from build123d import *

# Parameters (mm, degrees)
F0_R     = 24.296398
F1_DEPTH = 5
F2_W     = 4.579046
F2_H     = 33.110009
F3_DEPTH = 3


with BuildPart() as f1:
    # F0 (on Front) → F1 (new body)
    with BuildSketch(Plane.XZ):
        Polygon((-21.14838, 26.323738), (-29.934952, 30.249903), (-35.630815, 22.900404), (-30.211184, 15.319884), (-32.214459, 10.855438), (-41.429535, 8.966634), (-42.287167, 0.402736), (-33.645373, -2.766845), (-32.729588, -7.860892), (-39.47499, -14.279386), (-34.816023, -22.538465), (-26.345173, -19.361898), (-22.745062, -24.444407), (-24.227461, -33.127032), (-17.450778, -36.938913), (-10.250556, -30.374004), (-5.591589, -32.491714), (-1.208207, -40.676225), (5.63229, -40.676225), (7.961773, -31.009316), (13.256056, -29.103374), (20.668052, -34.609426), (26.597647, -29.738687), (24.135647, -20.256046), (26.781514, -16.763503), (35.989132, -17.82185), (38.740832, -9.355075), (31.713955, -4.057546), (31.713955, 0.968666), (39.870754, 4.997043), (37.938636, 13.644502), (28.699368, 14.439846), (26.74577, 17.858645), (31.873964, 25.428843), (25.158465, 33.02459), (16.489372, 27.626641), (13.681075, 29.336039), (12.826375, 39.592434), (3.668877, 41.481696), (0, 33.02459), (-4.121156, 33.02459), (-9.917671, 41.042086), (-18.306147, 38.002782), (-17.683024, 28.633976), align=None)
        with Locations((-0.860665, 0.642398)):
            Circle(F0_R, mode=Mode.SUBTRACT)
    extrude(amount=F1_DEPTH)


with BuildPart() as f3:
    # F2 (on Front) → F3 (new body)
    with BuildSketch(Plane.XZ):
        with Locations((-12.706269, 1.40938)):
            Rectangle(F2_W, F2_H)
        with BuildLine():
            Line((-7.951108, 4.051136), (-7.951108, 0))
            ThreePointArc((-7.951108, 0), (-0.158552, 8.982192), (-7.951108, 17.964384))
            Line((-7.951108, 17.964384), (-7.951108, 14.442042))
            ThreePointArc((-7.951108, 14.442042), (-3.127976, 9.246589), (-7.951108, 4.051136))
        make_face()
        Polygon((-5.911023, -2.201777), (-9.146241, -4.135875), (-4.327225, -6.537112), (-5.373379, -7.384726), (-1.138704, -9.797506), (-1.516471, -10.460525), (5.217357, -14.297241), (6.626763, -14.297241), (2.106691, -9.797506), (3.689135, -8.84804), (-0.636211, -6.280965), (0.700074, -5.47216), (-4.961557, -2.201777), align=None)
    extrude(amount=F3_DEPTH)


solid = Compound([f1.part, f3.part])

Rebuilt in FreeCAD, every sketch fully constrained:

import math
import FreeCAD as App
import Part
import Sketcher

V = App.Vector

doc = App.newDocument("Part")
params = doc.addObject("Spreadsheet::Sheet", "Params")
for row, (alias, value) in enumerate([
    ("pad1_length", "5 mm"),
    ("pad2_length", "3 mm"),
], start=1):
    params.set(f"A{row}", alias)
    params.set(f"B{row}", "=" + value)
    params.setAlias(f"B{row}", alias)

body = doc.addObject("PartDesign::Body", "Body")

# Sketch on XZ plane
sketch1 = doc.addObject("Sketcher::SketchObject", "Sketch")
body.addObject(sketch1)
sketch1.AttachmentSupport = (doc.XZ_Plane, [""])
sketch1.MapMode = "FlatFace"
sketch1.addGeometry([
    Part.LineSegment(V(-21.14838, 26.323738, 0), V(-29.934952, 30.249903, 0)),  # 0
    Part.LineSegment(V(-29.934952, 30.249903, 0), V(-35.630815, 22.900404, 0)),  # 1
    Part.LineSegment(V(-35.630815, 22.900404, 0), V(-30.211184, 15.319884, 0)),  # 2
    Part.LineSegment(V(-30.211184, 15.319884, 0), V(-32.214459, 10.855438, 0)),  # 3
    Part.LineSegment(V(-32.214459, 10.855438, 0), V(-41.429535, 8.966634, 0)),  # 4
    Part.LineSegment(V(-41.429535, 8.966634, 0), V(-42.287167, 0.402736, 0)),  # 5
    Part.LineSegment(V(-42.287167, 0.402736, 0), V(-33.645373, -2.766845, 0)),  # 6
    Part.LineSegment(V(-33.645373, -2.766845, 0), V(-32.729588, -7.860892, 0)),  # 7
    Part.LineSegment(V(-32.729588, -7.860892, 0), V(-39.47499, -14.279386, 0)),  # 8
    Part.LineSegment(V(-39.47499, -14.279386, 0), V(-34.816023, -22.538465, 0)),  # 9
    Part.LineSegment(V(-34.816023, -22.538465, 0), V(-26.345173, -19.361898, 0)),  # 10
    Part.LineSegment(V(-26.345173, -19.361898, 0), V(-22.745062, -24.444407, 0)),  # 11
    Part.LineSegment(V(-22.745062, -24.444407, 0), V(-24.227461, -33.127032, 0)),  # 12
    Part.LineSegment(V(-24.227461, -33.127032, 0), V(-17.450778, -36.938913, 0)),  # 13
    Part.LineSegment(V(-17.450778, -36.938913, 0), V(-10.250556, -30.374004, 0)),  # 14
    Part.LineSegment(V(-10.250556, -30.374004, 0), V(-5.591589, -32.491714, 0)),  # 15
    Part.LineSegment(V(-5.591589, -32.491714, 0), V(-1.208207, -40.676225, 0)),  # 16
    Part.LineSegment(V(-1.208207, -40.676225, 0), V(5.63229, -40.676225, 0)),  # 17
    Part.LineSegment(V(5.63229, -40.676225, 0), V(7.961773, -31.009316, 0)),  # 18
    Part.LineSegment(V(7.961773, -31.009316, 0), V(13.256056, -29.103374, 0)),  # 19
    Part.LineSegment(V(13.256056, -29.103374, 0), V(20.668052, -34.609426, 0)),  # 20
    Part.LineSegment(V(20.668052, -34.609426, 0), V(26.597647, -29.738687, 0)),  # 21
    Part.LineSegment(V(26.597647, -29.738687, 0), V(24.135647, -20.256046, 0)),  # 22
    Part.LineSegment(V(24.135647, -20.256046, 0), V(26.781514, -16.763503, 0)),  # 23
    Part.LineSegment(V(26.781514, -16.763503, 0), V(35.989132, -17.82185, 0)),  # 24
    Part.LineSegment(V(35.989132, -17.82185, 0), V(38.740832, -9.355075, 0)),  # 25
    Part.LineSegment(V(38.740832, -9.355075, 0), V(31.713955, -4.057546, 0)),  # 26
    Part.LineSegment(V(31.713955, -4.057546, 0), V(31.713955, 0.968666, 0)),  # 27
    Part.LineSegment(V(31.713955, 0.968666, 0), V(39.870754, 4.997043, 0)),  # 28
    Part.LineSegment(V(39.870754, 4.997043, 0), V(37.938636, 13.644502, 0)),  # 29
    Part.LineSegment(V(37.938636, 13.644502, 0), V(28.699368, 14.439846, 0)),  # 30
    Part.LineSegment(V(28.699368, 14.439846, 0), V(26.74577, 17.858645, 0)),  # 31
    Part.LineSegment(V(26.74577, 17.858645, 0), V(31.873964, 25.428843, 0)),  # 32
    Part.LineSegment(V(31.873964, 25.428843, 0), V(25.158465, 33.02459, 0)),  # 33
    Part.LineSegment(V(25.158465, 33.02459, 0), V(16.489372, 27.626641, 0)),  # 34
    Part.LineSegment(V(16.489372, 27.626641, 0), V(13.681075, 29.336039, 0)),  # 35
    Part.LineSegment(V(13.681075, 29.336039, 0), V(12.826375, 39.592434, 0)),  # 36
    Part.LineSegment(V(12.826375, 39.592434, 0), V(3.668877, 41.481696, 0)),  # 37
    Part.LineSegment(V(3.668877, 41.481696, 0), V(0, 33.02459, 0)),  # 38
    Part.LineSegment(V(0, 33.02459, 0), V(-4.121156, 33.02459, 0)),  # 39
    Part.LineSegment(V(-4.121156, 33.02459, 0), V(-9.917671, 41.042086, 0)),  # 40
    Part.LineSegment(V(-9.917671, 41.042086, 0), V(-18.306147, 38.002782, 0)),  # 41
    Part.LineSegment(V(-18.306147, 38.002782, 0), V(-17.683024, 28.633976, 0)),  # 42
    Part.LineSegment(V(-17.683024, 28.633976, 0), V(-21.14838, 26.323738, 0)),  # 43
    Part.Circle(V(-0.860665, 0.642398, 0), V(0, 0, 1), 24.296398),  # 44
], False)
sketch1.addConstraint([
    Sketcher.Constraint("Coincident", 0, 2, 1, 1),
    Sketcher.Constraint("Coincident", 1, 2, 2, 1),
    Sketcher.Constraint("Coincident", 2, 2, 3, 1),
    Sketcher.Constraint("Coincident", 3, 2, 4, 1),
    Sketcher.Constraint("Coincident", 4, 2, 5, 1),
    Sketcher.Constraint("Coincident", 5, 2, 6, 1),
    Sketcher.Constraint("Coincident", 6, 2, 7, 1),
    Sketcher.Constraint("Coincident", 7, 2, 8, 1),
    Sketcher.Constraint("Coincident", 8, 2, 9, 1),
    Sketcher.Constraint("Coincident", 9, 2, 10, 1),
    Sketcher.Constraint("Coincident", 10, 2, 11, 1),
    Sketcher.Constraint("Coincident", 11, 2, 12, 1),
    Sketcher.Constraint("Coincident", 12, 2, 13, 1),
    Sketcher.Constraint("Coincident", 13, 2, 14, 1),
    Sketcher.Constraint("Coincident", 14, 2, 15, 1),
    Sketcher.Constraint("Coincident", 15, 2, 16, 1),
    Sketcher.Constraint("Coincident", 16, 2, 17, 1),
    Sketcher.Constraint("Coincident", 17, 2, 18, 1),
    Sketcher.Constraint("Coincident", 18, 2, 19, 1),
    Sketcher.Constraint("Coincident", 19, 2, 20, 1),
    Sketcher.Constraint("Coincident", 20, 2, 21, 1),
    Sketcher.Constraint("Coincident", 21, 2, 22, 1),
    Sketcher.Constraint("Coincident", 22, 2, 23, 1),
    Sketcher.Constraint("Coincident", 23, 2, 24, 1),
    Sketcher.Constraint("Coincident", 24, 2, 25, 1),
    Sketcher.Constraint("Coincident", 25, 2, 26, 1),
    Sketcher.Constraint("Coincident", 26, 2, 27, 1),
    Sketcher.Constraint("Coincident", 27, 2, 28, 1),
    Sketcher.Constraint("Coincident", 28, 2, 29, 1),
    Sketcher.Constraint("Coincident", 29, 2, 30, 1),
    Sketcher.Constraint("Coincident", 30, 2, 31, 1),
    Sketcher.Constraint("Coincident", 31, 2, 32, 1),
    Sketcher.Constraint("Coincident", 32, 2, 33, 1),
    Sketcher.Constraint("Coincident", 33, 2, 34, 1),
    Sketcher.Constraint("Coincident", 34, 2, 35, 1),
    Sketcher.Constraint("Coincident", 35, 2, 36, 1),
    Sketcher.Constraint("Coincident", 36, 2, 37, 1),
    Sketcher.Constraint("Coincident", 37, 2, 38, 1),
    Sketcher.Constraint("Coincident", 38, 2, 39, 1),
    Sketcher.Constraint("Coincident", 39, 2, 40, 1),
    Sketcher.Constraint("Coincident", 40, 2, 41, 1),
    Sketcher.Constraint("Coincident", 41, 2, 42, 1),
    Sketcher.Constraint("Coincident", 42, 2, 43, 1),
    Sketcher.Constraint("Coincident", 43, 2, 0, 1),
    Sketcher.Constraint("Horizontal", 17),
    Sketcher.Constraint("Vertical", 27),
    Sketcher.Constraint("Horizontal", 39),
    Sketcher.Constraint("PointOnObject", 38, 2, -2),
    Sketcher.Constraint("Horizontal", 33, 2, 38, 2),
    Sketcher.Constraint("Diameter", 44, 48.592796),
    Sketcher.Constraint("DistanceX", 22, 2, 21, 2, 2.462),
    Sketcher.Constraint("Distance", 3, 4.8933),
    Sketcher.Constraint("Distance", 41, 8.922102),
    Sketcher.Constraint("DistanceY", -1, 1, 44, 3, 0.642398),
    Sketcher.Constraint("DistanceY", 10, 2, -1, 1, 19.361898),
    Sketcher.Constraint("DistanceY", -1, 1, 29, 2, 13.644502),
    Sketcher.Constraint("DistanceY", 1, 2, 0, 2, 7.349499),
    Sketcher.Constraint("DistanceY", 5, 2, 4, 2, 8.563898),
    Sketcher.Constraint("DistanceY", 5, 2, 3, 2, 10.452702),
    Sketcher.Constraint("DistanceX", 8, 2, 7, 2, 6.745402),
    Sketcher.Constraint("DistanceY", 9, 2, 5, 2, 22.941201),
    Sketcher.Constraint("DistanceX", 6, 2, 10, 2, 7.3002),
    Sketcher.Constraint("DistanceX", 12, 2, 11, 2, 1.482399),
    Sketcher.Constraint("DistanceY", 13, 2, 15, 2, 4.447199),
    Sketcher.Constraint("DistanceY", 15, 2, 18, 2, 1.482398),
    Sketcher.Constraint("DistanceY", 17, 2, 20, 2, 6.066799),
    Sketcher.Constraint("DistanceX", 24, 2, 25, 2, 2.7517),
    Sketcher.Constraint("DistanceY", 22, 2, 26, 2, 16.1985),
    Sketcher.Constraint("DistanceX", 27, 2, 28, 2, 8.156799),
    Sketcher.Constraint("DistanceY", 30, 2, 31, 2, 3.418799),
    Sketcher.Constraint("DistanceY", 31, 2, 32, 2, 7.570198),
    Sketcher.Constraint("DistanceY", 28, 2, 32, 2, 20.4318),
    Sketcher.Constraint("DistanceX", 33, 2, 32, 2, 6.715499),
    Sketcher.Constraint("DistanceX", 34, 2, 31, 2, 10.256398),
    Sketcher.Constraint("DistanceY", 34, 2, 35, 2, 1.709398),
    Sketcher.Constraint("DistanceX", 36, 2, 35, 2, 0.8547),
    Sketcher.Constraint("Distance", 1, 9.298279),
    Sketcher.Constraint("Distance", 2, 9.31862),
    Sketcher.Constraint("Distance", 6, 9.204719),
    Sketcher.Constraint("Distance", 7, 5.17571),
    Sketcher.Constraint("Distance", 8, 9.31115),
    Sketcher.Constraint("Distance", 9, 9.482529),
    Sketcher.Constraint("Distance", 10, 9.046871),
    Sketcher.Constraint("Distance", 11, 6.228378),
    Sketcher.Constraint("Distance", 13, 7.775209),
    Sketcher.Constraint("Distance", 14, 9.743779),
    Sketcher.Constraint("Distance", 16, 9.284409),
    Sketcher.Constraint("Distance", 29, 8.860679),
    Sketcher.Constraint("Distance", 35, 3.28764),
    Sketcher.Constraint("Distance", 37, 9.350352),
    Sketcher.Constraint("Distance", 38, 9.218639),
    Sketcher.Constraint("Distance", 43, 4.16484),
    Sketcher.Constraint("DistanceX", 17, 1, 17, 2, 6.840497),
    Sketcher.Constraint("DistanceX", 39, 2, 39, 1, 4.121156),
    Sketcher.Constraint("DistanceY", 27, 1, 27, 2, 5.026212),
    Sketcher.Constraint("DistanceX", 0, 2, -1, 1, 29.934952),
    Sketcher.Constraint("DistanceX", 3, 2, -1, 1, 32.214459),
    Sketcher.Constraint("DistanceY", 7, 2, -1, 1, 7.860892),
    Sketcher.Constraint("DistanceX", 8, 2, -1, 1, 39.47499),
    Sketcher.Constraint("DistanceX", 12, 2, -1, 1, 24.227461),
    Sketcher.Constraint("DistanceX", 15, 2, -1, 1, 5.591589),
    Sketcher.Constraint("DistanceX", -1, 1, 17, 2, 5.63229),
    Sketcher.Constraint("DistanceX", -1, 1, 20, 2, 20.668052),
    Sketcher.Constraint("DistanceX", -1, 1, 24, 2, 35.989132),
    Sketcher.Constraint("DistanceY", 24, 2, -1, 1, 17.82185),
    Sketcher.Constraint("DistanceX", -1, 1, 30, 2, 28.699368),
    Sketcher.Constraint("DistanceX", -1, 1, 31, 2, 26.74577),
    Sketcher.Constraint("DistanceY", -1, 1, 33, 2, 33.02459),
    Sketcher.Constraint("DistanceY", -1, 1, 34, 2, 27.626641),
    Sketcher.Constraint("DistanceX", 40, 2, -1, 1, 9.917671),
    Sketcher.Constraint("DistanceX", 43, 2, -1, 1, 21.14838),
    Sketcher.Constraint("DistanceX", 1, 2, 44, 3, 34.77015),
    Sketcher.Constraint("DistanceX", 1, 2, 2, 2, 5.419631),
    Sketcher.Constraint("DistanceY", 44, 3, 3, 2, 10.21304),
    Sketcher.Constraint("DistanceX", 4, 2, 2, 2, 11.218351),
    Sketcher.Constraint("DistanceY", 12, 2, 7, 2, 25.26614),
    Sketcher.Constraint("DistanceY", 13, 2, 12, 2, 3.811881),
    Sketcher.Constraint("DistanceY", 13, 2, 14, 2, 6.564909),
    Sketcher.Constraint("DistanceX", 16, 2, 18, 2, 9.16998),
    Sketcher.Constraint("DistanceY", 18, 2, 19, 2, 1.905942),
    Sketcher.Constraint("DistanceX", 14, 2, 19, 2, 23.506612),
    Sketcher.Constraint("DistanceY", 20, 2, 21, 2, 4.870739),
    Sketcher.Constraint("DistanceX", 19, 2, 21, 2, 13.341591),
    Sketcher.Constraint("DistanceY", 21, 2, 22, 2, 9.482641),
    Sketcher.Constraint("DistanceX", 19, 2, 23, 2, 13.525458),
    Sketcher.Constraint("DistanceY", 19, 2, 23, 2, 12.339871),
    Sketcher.Constraint("DistanceY", 23, 2, 25, 2, 7.408428),
    Sketcher.Constraint("DistanceX", 23, 2, 26, 2, 4.932441),
    Sketcher.Constraint("DistanceY", 26, 2, 28, 2, 9.054589),
    Sketcher.Constraint("DistanceX", 32, 2, 28, 2, 7.99679),
    Sketcher.Constraint("DistanceY", 32, 2, 36, 2, 14.163591),
    Sketcher.Constraint("DistanceY", 40, 2, 37, 2, 0.43961),
    Sketcher.Constraint("DistanceY", 0, 2, 41, 2, 7.752879),
    Sketcher.Constraint("DistanceY", 42, 2, 40, 2, 12.40811),
    Sketcher.Constraint("DistanceY", 43, 2, 42, 2, 2.310238),
])
pad1 = doc.addObject("PartDesign::Pad", "Pad")
body.addObject(pad1)
pad1.Profile = sketch1
pad1.setExpression("Length", "Params.pad1_length")
body2 = doc.addObject("PartDesign::Body", "Body001")
body2.AllowCompound = True

# Sketch on XZ plane
sketch2 = doc.addObject("Sketcher::SketchObject", "Sketch001")
body2.addObject(sketch2)
sketch2.AttachmentSupport = (doc.getObject("XZ_Plane001"), [""])
sketch2.MapMode = "FlatFace"
sketch2.addGeometry([
    Part.LineSegment(V(-14.995792, 17.964385, 0), V(-14.995792, -15.145625, 0)),  # 0
    Part.LineSegment(V(-14.995792, -15.145625, 0), V(-10.416746, -15.145625, 0)),  # 1
    Part.LineSegment(V(-10.416746, -15.145625, 0), V(-10.416746, 17.964385, 0)),  # 2
    Part.LineSegment(V(-10.416746, 17.964385, 0), V(-14.995792, 17.964385, 0)),  # 3
    Part.LineSegment(V(-7.951108, 4.051136, 0), V(-7.951108, 0, 0)),  # 4
    Part.ArcOfCircle(Part.Circle(V(-9.231551, 8.982192, 0), V(0, 0, 1), 9.072999), math.radians(-81.886949), math.radians(81.886949)),  # 5
    Part.LineSegment(V(-7.951108, 17.964384, 0), V(-7.951108, 14.442042, 0)),  # 6
    Part.ArcOfCircle(Part.Circle(V(-8.3378, 9.246589, 0), V(0, 0, 1), 5.209824), math.radians(-85.743389), math.radians(85.743389)),  # 7
    Part.LineSegment(V(-5.911023, -2.201777, 0), V(-9.146241, -4.135875, 0)),  # 8
    Part.LineSegment(V(-9.146241, -4.135875, 0), V(-4.327225, -6.537112, 0)),  # 9
    Part.LineSegment(V(-4.327225, -6.537112, 0), V(-5.373379, -7.384726, 0)),  # 10
    Part.LineSegment(V(-5.373379, -7.384726, 0), V(-1.138704, -9.797506, 0)),  # 11
    Part.LineSegment(V(-1.138704, -9.797506, 0), V(-1.516471, -10.460525, 0)),  # 12
    Part.LineSegment(V(-1.516471, -10.460525, 0), V(5.217357, -14.297241, 0)),  # 13
    Part.LineSegment(V(5.217357, -14.297241, 0), V(6.626763, -14.297241, 0)),  # 14
    Part.LineSegment(V(6.626763, -14.297241, 0), V(2.106691, -9.797506, 0)),  # 15
    Part.LineSegment(V(2.106691, -9.797506, 0), V(3.689135, -8.84804, 0)),  # 16
    Part.LineSegment(V(3.689135, -8.84804, 0), V(-0.636211, -6.280965, 0)),  # 17
    Part.LineSegment(V(-0.636211, -6.280965, 0), V(0.700074, -5.47216, 0)),  # 18
    Part.LineSegment(V(0.700074, -5.47216, 0), V(-4.961557, -2.201777, 0)),  # 19
    Part.LineSegment(V(-4.961557, -2.201777, 0), V(-5.911023, -2.201777, 0)),  # 20
], False)
sketch2.addConstraint([
    Sketcher.Constraint("Coincident", 0, 2, 1, 1),
    Sketcher.Constraint("Coincident", 1, 2, 2, 1),
    Sketcher.Constraint("Coincident", 2, 2, 3, 1),
    Sketcher.Constraint("Coincident", 3, 2, 0, 1),
    Sketcher.Constraint("Coincident", 4, 2, 5, 1),
    Sketcher.Constraint("Coincident", 5, 2, 6, 1),
    Sketcher.Constraint("Coincident", 6, 2, 7, 2),
    Sketcher.Constraint("Coincident", 7, 1, 4, 1),
    Sketcher.Constraint("Coincident", 8, 2, 9, 1),
    Sketcher.Constraint("Coincident", 9, 2, 10, 1),
    Sketcher.Constraint("Coincident", 10, 2, 11, 1),
    Sketcher.Constraint("Coincident", 11, 2, 12, 1),
    Sketcher.Constraint("Coincident", 12, 2, 13, 1),
    Sketcher.Constraint("Coincident", 13, 2, 14, 1),
    Sketcher.Constraint("Coincident", 14, 2, 15, 1),
    Sketcher.Constraint("Coincident", 15, 2, 16, 1),
    Sketcher.Constraint("Coincident", 16, 2, 17, 1),
    Sketcher.Constraint("Coincident", 17, 2, 18, 1),
    Sketcher.Constraint("Coincident", 18, 2, 19, 1),
    Sketcher.Constraint("Coincident", 19, 2, 20, 1),
    Sketcher.Constraint("Coincident", 20, 2, 8, 1),
    Sketcher.Constraint("Vertical", 0),
    Sketcher.Constraint("Horizontal", 1),
    Sketcher.Constraint("Vertical", 2),
    Sketcher.Constraint("Horizontal", 3),
    Sketcher.Constraint("Vertical", 4),
    Sketcher.Constraint("Vertical", 6),
    Sketcher.Constraint("Horizontal", 14),
    Sketcher.Constraint("Horizontal", 20),
    Sketcher.Constraint("PointOnObject", 4, 2, -1),
    Sketcher.Constraint("Perpendicular", 11, 12),
    Sketcher.Constraint("Perpendicular", 12, 13),
    Sketcher.Constraint("Horizontal", 3, 2, 5, 2),
    Sketcher.Constraint("Horizontal", 11, 2, 15, 2),
    Sketcher.Constraint("Vertical", 4, 2, 5, 2),
    Sketcher.Constraint("Radius", 5, 9.072999),
    Sketcher.Constraint("Radius", 7, 5.209824),
    Sketcher.Constraint("DistanceY", 0, 2, 0, 1, 33.110009),
    Sketcher.Constraint("DistanceY", 6, 2, 6, 1, 3.522342),
    Sketcher.Constraint("DistanceX", 7, 3, -1, 1, 8.3378),
    Sketcher.Constraint("DistanceY", 1, 2, 10, 2, 7.760899),
    Sketcher.Constraint("DistanceY", 12, 2, 10, 2, 3.075799),
    Sketcher.Constraint("DistanceY", 13, 2, 16, 2, 5.449201),
    Sketcher.Constraint("DistanceX", 17, 2, 15, 2, 2.742902),
    Sketcher.Constraint("DistanceX", 9, 2, 18, 2, 5.027299),
    Sketcher.Constraint("DistanceY", 8, 2, 19, 2, 1.934098),
    Sketcher.Constraint("Distance", 9, 5.38413),
    Sketcher.Constraint("Distance", 13, 7.75015),
    Sketcher.Constraint("Distance", 16, 1.845431),
    Sketcher.Constraint("Distance", 17, 5.029761),
    Sketcher.Constraint("DistanceX", 1, 1, 1, 2, 4.579046),
    Sketcher.Constraint("DistanceX", 14, 1, 14, 2, 1.409406),
    Sketcher.Constraint("DistanceX", 20, 2, 20, 1, 0.949466),
    Sketcher.Constraint("DistanceY", 4, 2, 4, 1, 4.051136),
    Sketcher.Constraint("DistanceX", 5, 3, -1, 1, 9.231551),
    Sketcher.Constraint("DistanceX", 8, 2, -1, 1, 9.146241),
    Sketcher.Constraint("DistanceY", 9, 2, -1, 1, 6.537112),
    Sketcher.Constraint("DistanceX", 10, 2, -1, 1, 5.373379),
    Sketcher.Constraint("DistanceX", 12, 2, -1, 1, 1.516471),
    Sketcher.Constraint("DistanceY", 13, 2, -1, 1, 14.297241),
    Sketcher.Constraint("DistanceX", -1, 1, 15, 2, 2.106691),
    Sketcher.Constraint("DistanceY", 18, 2, -1, 1, 5.47216),
    Sketcher.Constraint("DistanceX", 0, 2, 5, 3, 5.764241),
    Sketcher.Constraint("DistanceY", 8, 2, 7, 1, 8.187011),
    Sketcher.Constraint("DistanceX", 4, 2, 19, 2, 2.989551),
])
pad2 = doc.addObject("PartDesign::Pad", "Pad001")
body2.addObject(pad2)
pad2.Profile = sketch2
pad2.setExpression("Length", "Params.pad2_length")

doc.recompute()
